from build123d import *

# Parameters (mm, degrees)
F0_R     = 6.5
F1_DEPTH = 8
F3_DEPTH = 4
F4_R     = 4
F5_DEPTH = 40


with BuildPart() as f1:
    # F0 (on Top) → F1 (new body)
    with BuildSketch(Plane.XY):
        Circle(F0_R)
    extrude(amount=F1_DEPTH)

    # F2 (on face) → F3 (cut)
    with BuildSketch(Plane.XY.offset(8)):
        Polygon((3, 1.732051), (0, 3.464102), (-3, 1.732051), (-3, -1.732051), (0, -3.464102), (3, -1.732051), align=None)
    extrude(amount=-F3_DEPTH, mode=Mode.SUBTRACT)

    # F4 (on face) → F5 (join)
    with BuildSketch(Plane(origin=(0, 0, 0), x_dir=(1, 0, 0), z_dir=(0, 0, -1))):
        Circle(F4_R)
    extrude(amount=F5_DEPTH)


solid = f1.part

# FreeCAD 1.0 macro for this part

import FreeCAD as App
import Part
import Sketcher
Q = App.Units.Quantity


def add_polygon(sketch, points):
    """Adds a closed chain of lines whose ends are joined by coincident constraints."""
    first, n = sketch.GeometryCount, len(points)
    for a, b in zip(points, points[1:] + points[:1]):
        sketch.addGeometry(Part.LineSegment(App.Vector(*a, 0), App.Vector(*b, 0)), False)
    for i in range(n):
        sketch.addConstraint(Sketcher.Constraint("Coincident", first + i, 2, first + (i + 1) % n, 1))

doc = App.newDocument("Part")
body = doc.addObject("PartDesign::Body", "Body")

# Sketch on XY plane
sketch1 = body.newObject("Sketcher::SketchObject", "Sketch")
sketch1.AttachmentSupport = (doc.getObject("XY_Plane"), [""])
sketch1.MapMode = "FlatFace"
sketch1.addGeometry(Part.Circle(App.Vector(0, 0, 0), App.Vector(0, 0, 1), 6), False)
sketch1.addConstraint(Sketcher.Constraint("Coincident", 0, 3, -1, 1))
sketch1.addConstraint(Sketcher.Constraint("Diameter", 0, 13.0))
pad1 = body.newObject("PartDesign::Pad", "Pad")
pad1.Profile = sketch1
pad1.Length = 8

# Sketch on XY plane
sketch2 = body.newObject("Sketcher::SketchObject", "Sketch001")
sketch2.AttachmentSupport = (doc.getObject("XY_Plane"), [""])
sketch2.MapMode = "FlatFace"
sketch2.AttachmentOffset = App.Placement(App.Vector(0, 0, 8), App.Rotation())
add_polygon(sketch2, [(3, 1.7), (0, 3.5), (-3, 1.7), (-3, -1.7), (0, -3.5), (3, -1.7)])  # lines 0-5
sketch2.addConstraint(Sketcher.Constraint("Vertical", 2))
sketch2.addConstraint(Sketcher.Constraint("Vertical", 5))
sketch2.addConstraint(Sketcher.Constraint("Symmetric", 0, 2, 3, 2, -1, 1))
sketch2.addConstraint(Sketcher.Constraint("Symmetric", 1, 2, 4, 2, -1, 1))
sketch2.addConstraint(Sketcher.Constraint("PointOnObject", 0, 2, -2))
sketch2.addConstraint(Sketcher.Constraint("Parallel", 0, 3))
sketch2.addConstraint(Sketcher.Constraint("Horizontal", 2, 2, 4, 2))
sketch2.addConstraint(Sketcher.Constraint("Angle", 0, Q("149.999997 deg")))
sketch2.addConstraint(Sketcher.Constraint("DistanceX", 1, 2, -1, 1, 3.0))
sketch2.addConstraint(Sketcher.Constraint("DistanceY", 2, 2, 2, 1, 3.464102))
pocket1 = body.newObject("PartDesign::Pocket", "Pocket")
pocket1.Profile = sketch2
pocket1.Length = 4

# Sketch on XY plane
sketch3 = body.newObject("Sketcher::SketchObject", "Sketch002")
sketch3.AttachmentSupport = (doc.getObject("XY_Plane"), [""])
sketch3.MapMode = "FlatFace"
sketch3.addGeometry(Part.Circle(App.Vector(0, 0, 0), App.Vector(0, 0, 1), 4), False)
sketch3.addConstraint(Sketcher.Constraint("Coincident", 0, 3, -1, 1))
sketch3.addConstraint(Sketcher.Constraint("Diameter", 0, 8.0))
pad2 = body.newObject("PartDesign::Pad", "Pad001")
pad2.Profile = sketch3
pad2.Length = 40
pad2.Reversed = True

doc.recompute()
